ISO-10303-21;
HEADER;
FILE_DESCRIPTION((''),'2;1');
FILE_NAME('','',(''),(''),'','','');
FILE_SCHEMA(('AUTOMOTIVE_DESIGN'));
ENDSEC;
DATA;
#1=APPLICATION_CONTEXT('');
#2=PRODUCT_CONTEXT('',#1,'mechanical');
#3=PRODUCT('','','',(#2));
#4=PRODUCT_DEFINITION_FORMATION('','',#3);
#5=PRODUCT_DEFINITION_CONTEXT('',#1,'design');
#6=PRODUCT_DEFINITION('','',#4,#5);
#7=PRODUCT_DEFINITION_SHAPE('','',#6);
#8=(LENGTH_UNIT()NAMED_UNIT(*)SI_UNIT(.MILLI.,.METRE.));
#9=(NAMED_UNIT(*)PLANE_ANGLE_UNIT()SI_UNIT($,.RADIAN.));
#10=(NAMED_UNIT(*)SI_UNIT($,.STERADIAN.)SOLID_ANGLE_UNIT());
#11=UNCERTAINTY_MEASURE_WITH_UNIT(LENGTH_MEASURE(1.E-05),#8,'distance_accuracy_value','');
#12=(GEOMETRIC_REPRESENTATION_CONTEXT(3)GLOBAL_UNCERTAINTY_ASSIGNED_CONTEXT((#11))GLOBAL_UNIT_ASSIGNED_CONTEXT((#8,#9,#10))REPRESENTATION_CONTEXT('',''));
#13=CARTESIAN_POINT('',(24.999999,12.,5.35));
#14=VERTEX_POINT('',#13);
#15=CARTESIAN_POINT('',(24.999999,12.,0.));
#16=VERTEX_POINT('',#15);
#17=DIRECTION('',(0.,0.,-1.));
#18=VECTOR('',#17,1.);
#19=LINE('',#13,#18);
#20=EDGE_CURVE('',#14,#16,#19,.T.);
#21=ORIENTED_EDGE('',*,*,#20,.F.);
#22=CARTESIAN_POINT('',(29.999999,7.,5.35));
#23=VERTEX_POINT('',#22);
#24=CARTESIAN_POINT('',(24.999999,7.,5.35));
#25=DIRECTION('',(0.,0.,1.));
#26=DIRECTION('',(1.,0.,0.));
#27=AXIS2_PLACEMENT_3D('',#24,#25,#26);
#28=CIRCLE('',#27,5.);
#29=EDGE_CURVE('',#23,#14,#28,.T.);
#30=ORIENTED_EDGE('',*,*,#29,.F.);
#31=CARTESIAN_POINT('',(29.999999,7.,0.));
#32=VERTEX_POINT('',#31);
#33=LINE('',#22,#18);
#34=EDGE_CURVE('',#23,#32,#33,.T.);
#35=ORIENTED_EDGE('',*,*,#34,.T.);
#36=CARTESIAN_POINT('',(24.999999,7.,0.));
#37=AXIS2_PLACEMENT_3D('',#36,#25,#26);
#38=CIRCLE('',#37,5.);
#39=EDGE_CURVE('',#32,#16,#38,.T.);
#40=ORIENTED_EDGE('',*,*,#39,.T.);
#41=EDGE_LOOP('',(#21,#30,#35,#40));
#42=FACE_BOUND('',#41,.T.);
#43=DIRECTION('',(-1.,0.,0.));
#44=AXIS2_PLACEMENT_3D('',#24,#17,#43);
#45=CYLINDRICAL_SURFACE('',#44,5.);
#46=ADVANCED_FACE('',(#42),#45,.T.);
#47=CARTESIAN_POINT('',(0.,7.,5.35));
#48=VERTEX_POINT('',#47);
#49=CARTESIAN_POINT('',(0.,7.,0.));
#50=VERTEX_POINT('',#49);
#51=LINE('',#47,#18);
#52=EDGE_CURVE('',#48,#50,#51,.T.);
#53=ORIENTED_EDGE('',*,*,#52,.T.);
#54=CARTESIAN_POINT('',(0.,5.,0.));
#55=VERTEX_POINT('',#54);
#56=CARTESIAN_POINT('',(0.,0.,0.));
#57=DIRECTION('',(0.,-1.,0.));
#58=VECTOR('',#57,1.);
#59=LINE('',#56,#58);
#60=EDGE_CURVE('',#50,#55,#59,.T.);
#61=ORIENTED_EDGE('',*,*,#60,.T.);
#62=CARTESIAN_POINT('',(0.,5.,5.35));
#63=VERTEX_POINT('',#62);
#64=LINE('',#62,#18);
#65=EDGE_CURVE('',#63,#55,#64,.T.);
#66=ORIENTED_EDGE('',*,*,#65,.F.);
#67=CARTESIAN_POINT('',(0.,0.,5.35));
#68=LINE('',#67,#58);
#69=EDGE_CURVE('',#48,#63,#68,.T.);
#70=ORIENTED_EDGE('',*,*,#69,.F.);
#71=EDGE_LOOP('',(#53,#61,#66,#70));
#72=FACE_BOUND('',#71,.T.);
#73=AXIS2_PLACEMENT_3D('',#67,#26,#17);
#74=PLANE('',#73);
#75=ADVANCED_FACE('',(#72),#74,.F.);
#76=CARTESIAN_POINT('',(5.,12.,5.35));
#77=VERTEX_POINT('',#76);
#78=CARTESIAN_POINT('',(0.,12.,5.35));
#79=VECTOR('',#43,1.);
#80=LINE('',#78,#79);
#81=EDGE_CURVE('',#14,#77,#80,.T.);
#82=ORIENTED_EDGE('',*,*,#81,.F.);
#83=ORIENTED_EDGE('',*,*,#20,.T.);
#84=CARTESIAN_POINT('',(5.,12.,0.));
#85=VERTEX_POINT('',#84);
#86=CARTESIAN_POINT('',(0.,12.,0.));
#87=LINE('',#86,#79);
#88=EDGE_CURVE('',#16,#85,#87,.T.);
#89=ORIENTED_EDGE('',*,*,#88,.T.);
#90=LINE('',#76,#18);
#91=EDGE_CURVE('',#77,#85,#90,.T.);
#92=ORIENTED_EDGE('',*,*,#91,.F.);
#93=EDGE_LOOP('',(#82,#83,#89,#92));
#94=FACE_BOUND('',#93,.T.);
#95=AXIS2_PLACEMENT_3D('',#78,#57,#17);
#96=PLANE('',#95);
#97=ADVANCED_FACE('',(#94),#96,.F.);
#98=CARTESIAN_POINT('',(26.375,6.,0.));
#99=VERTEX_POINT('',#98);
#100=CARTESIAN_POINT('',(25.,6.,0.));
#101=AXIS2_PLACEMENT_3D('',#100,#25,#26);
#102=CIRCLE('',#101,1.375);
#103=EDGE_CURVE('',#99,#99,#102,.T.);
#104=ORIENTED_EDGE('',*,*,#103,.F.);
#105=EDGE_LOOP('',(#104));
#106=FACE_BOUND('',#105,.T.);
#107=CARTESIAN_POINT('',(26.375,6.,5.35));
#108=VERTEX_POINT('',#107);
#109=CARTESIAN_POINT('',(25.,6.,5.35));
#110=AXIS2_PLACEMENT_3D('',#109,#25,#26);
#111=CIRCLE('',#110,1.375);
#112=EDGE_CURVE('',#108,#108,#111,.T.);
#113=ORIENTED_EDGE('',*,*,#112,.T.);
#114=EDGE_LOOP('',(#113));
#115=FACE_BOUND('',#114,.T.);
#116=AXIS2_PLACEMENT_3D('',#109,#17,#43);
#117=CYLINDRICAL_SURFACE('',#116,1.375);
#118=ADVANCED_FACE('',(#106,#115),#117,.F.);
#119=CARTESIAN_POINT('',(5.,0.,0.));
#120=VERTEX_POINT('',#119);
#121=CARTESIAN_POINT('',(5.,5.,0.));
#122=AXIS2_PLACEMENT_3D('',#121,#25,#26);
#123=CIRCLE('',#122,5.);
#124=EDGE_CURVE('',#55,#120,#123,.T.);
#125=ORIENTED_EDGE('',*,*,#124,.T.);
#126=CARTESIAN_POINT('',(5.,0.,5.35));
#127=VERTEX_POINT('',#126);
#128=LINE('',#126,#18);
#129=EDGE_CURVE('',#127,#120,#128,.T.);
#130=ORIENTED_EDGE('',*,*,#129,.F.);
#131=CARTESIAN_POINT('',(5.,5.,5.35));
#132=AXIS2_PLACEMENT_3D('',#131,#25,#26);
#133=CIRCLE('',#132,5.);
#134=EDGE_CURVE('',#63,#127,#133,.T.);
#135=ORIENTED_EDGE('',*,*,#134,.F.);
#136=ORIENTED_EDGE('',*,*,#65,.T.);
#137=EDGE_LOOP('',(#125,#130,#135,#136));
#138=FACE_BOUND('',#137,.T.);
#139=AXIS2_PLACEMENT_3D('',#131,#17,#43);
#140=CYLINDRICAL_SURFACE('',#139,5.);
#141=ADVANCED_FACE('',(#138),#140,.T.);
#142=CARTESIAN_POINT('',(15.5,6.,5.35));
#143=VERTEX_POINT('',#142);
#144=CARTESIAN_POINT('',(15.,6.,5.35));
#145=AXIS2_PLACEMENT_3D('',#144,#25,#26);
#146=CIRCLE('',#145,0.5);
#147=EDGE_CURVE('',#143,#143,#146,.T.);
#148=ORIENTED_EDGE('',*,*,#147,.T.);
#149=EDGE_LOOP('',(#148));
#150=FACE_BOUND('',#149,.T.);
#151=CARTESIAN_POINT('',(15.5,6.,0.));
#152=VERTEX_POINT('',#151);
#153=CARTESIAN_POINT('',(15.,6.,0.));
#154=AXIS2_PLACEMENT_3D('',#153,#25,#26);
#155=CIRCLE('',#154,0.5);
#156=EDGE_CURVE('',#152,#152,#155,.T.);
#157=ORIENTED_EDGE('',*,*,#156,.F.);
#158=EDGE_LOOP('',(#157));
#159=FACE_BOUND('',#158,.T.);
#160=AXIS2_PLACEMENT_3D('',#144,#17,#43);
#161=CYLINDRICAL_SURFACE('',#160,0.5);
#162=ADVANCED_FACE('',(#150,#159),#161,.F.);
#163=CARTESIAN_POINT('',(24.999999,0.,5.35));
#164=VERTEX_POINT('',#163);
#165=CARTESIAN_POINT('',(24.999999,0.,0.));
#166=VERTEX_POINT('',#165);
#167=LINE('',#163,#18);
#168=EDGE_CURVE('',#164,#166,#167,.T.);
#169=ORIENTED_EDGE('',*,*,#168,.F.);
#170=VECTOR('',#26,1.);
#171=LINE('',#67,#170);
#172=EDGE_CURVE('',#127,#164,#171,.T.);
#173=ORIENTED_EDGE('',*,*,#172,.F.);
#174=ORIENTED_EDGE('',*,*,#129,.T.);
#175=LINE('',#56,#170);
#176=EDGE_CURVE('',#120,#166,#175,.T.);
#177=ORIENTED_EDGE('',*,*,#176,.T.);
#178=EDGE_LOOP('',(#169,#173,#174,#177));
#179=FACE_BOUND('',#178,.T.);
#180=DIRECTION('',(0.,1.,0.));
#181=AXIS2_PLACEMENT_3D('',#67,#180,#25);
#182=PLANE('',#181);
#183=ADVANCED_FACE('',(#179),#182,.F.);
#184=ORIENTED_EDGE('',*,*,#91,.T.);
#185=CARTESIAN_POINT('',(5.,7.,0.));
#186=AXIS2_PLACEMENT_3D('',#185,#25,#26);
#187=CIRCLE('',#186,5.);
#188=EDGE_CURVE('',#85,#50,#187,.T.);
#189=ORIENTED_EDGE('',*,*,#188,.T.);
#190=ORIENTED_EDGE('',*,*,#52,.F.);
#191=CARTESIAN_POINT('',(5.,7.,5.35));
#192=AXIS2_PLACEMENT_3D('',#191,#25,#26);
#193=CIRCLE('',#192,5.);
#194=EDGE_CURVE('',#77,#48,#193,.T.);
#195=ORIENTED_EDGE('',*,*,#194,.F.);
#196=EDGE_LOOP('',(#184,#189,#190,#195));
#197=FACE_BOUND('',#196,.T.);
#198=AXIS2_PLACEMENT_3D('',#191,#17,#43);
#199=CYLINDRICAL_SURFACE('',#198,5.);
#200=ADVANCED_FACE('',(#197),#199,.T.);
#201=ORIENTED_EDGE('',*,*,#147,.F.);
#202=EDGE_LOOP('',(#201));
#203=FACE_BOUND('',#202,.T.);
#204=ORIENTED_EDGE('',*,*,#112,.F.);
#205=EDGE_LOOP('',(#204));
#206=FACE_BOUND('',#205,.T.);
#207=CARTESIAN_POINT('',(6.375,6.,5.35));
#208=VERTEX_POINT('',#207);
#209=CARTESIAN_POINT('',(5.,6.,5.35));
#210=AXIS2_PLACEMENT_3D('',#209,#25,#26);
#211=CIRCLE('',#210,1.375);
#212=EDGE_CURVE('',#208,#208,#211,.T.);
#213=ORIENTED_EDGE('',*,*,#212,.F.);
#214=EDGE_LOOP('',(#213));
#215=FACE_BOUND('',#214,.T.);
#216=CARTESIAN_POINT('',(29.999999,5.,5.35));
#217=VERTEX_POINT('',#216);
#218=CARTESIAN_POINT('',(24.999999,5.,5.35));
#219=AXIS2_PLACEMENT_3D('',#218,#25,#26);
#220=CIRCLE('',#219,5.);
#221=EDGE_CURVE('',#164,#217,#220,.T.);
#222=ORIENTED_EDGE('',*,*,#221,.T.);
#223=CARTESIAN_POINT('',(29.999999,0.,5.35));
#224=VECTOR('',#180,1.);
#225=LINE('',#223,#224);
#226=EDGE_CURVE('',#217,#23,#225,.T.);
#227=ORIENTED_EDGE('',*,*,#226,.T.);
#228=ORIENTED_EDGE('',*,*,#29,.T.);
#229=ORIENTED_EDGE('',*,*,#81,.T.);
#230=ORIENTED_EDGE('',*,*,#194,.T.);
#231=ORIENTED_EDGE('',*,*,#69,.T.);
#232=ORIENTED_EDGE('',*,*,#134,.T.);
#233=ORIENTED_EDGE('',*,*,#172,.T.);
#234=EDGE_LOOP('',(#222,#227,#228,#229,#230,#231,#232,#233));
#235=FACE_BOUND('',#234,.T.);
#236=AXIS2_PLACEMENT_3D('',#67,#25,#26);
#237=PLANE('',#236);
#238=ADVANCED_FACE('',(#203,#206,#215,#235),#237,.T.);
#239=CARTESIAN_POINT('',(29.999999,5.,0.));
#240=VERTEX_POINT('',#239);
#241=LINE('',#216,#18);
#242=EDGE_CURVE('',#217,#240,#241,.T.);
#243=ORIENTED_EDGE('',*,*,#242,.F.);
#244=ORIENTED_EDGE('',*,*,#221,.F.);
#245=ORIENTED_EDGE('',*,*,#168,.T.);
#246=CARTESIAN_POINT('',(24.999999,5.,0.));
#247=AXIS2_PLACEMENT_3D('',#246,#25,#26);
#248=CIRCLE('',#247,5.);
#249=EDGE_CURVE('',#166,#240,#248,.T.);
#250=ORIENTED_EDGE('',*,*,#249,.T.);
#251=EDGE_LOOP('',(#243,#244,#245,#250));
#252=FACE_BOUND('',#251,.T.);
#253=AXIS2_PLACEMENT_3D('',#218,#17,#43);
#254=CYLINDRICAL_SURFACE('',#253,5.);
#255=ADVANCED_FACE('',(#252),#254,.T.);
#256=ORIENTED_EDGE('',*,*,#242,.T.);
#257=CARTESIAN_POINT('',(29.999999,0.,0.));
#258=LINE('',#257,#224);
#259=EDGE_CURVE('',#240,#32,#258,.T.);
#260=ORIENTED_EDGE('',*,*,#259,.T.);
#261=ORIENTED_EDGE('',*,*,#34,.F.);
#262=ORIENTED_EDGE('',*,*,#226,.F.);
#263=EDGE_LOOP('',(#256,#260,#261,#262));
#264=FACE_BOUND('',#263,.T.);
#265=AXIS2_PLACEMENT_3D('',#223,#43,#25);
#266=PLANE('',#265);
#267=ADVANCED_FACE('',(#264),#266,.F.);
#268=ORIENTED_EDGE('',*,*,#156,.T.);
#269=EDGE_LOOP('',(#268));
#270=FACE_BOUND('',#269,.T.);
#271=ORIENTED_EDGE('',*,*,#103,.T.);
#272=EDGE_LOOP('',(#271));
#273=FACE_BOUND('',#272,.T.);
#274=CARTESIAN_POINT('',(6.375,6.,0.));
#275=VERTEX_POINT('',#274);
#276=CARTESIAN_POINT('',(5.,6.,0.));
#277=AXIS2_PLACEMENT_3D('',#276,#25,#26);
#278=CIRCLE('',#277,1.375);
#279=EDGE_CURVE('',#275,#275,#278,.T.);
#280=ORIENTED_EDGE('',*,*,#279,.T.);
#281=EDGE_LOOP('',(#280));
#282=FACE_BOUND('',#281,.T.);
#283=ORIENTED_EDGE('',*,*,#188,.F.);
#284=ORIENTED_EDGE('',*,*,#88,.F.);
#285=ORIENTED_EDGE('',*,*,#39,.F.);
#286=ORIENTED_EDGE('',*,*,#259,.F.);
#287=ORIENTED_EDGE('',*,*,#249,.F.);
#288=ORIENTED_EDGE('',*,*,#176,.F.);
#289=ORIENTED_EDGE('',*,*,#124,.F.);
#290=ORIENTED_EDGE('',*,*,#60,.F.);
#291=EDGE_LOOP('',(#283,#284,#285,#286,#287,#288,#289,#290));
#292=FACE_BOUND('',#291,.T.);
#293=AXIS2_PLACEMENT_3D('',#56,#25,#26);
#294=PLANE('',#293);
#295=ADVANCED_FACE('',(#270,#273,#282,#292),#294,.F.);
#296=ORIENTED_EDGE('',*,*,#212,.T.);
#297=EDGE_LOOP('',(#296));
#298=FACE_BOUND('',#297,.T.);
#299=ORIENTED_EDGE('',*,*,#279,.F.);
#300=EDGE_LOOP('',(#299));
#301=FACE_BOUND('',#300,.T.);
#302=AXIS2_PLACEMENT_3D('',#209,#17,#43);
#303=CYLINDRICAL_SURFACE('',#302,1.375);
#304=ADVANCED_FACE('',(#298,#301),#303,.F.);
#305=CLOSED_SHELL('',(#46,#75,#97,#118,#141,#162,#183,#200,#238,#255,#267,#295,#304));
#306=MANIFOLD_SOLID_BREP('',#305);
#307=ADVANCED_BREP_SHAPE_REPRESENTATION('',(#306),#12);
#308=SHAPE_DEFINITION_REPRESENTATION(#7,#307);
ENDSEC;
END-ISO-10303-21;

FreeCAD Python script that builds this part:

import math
import FreeCAD as App
import Part
import Sketcher

V = App.Vector
Q = App.Units.Quantity

doc = App.newDocument("Part")
params = doc.addObject("Spreadsheet::Sheet", "Params")
for row, (alias, value) in enumerate([
    ("sketch1_diameter", "1 mm"),
    ("sketch1_radius", "5 mm"),
    ("sketch1_diameter2", "2.75 mm"),
    ("sketch1_width", "19.999999 mm"),
    ("sketch1_height", "2 mm"),
    ("pad1_length", "5.35 mm"),
], start=1):
    params.set(f"A{row}", alias)
    params.set(f"B{row}", "=" + value)
    params.setAlias(f"B{row}", alias)

body = doc.addObject("PartDesign::Body", "Body")

sketch1 = body.newObject("Sketcher::SketchObject", "Sketch")
sketch1.AttachmentSupport = (doc.getObject("XY_Plane"), [""])
sketch1.MapMode = "FlatFace"
sketch1.addGeometry(Part.LineSegment(V(5, 0, 0), V(24.999999, 0, 0)), False)
sketch1.addGeometry(Part.ArcOfCircle(Part.Circle(V(24.999999, 5, 0), V(0, 0, 1), 5), math.radians(-89.999999), math.radians(0)), False)
sketch1.addGeometry(Part.LineSegment(V(29.999999, 5, 0), V(29.999999, 7, 0)), False)
sketch1.addGeometry(Part.ArcOfCircle(Part.Circle(V(24.999999, 7, 0), V(0, 0, 1), 5), math.radians(0), math.radians(90)), False)
sketch1.addGeometry(Part.LineSegment(V(24.999999, 12, 0), V(5, 12, 0)), False)
sketch1.addGeometry(Part.ArcOfCircle(Part.Circle(V(5, 7, 0), V(0, 0, 1), 5), math.radians(90.000001), math.radians(180)), False)
sketch1.addGeometry(Part.LineSegment(V(0, 7, 0), V(0, 5, 0)), False)
sketch1.addGeometry(Part.ArcOfCircle(Part.Circle(V(5, 5, 0), V(0, 0, 1), 5), math.radians(180), math.radians(270)), False)
sketch1.addGeometry(Part.Circle(V(5, 6, 0), V(0, 0, 1), 1.375), False)
sketch1.addGeometry(Part.Circle(V(15, 6, 0), V(0, 0, 1), 0.5), False)
sketch1.addGeometry(Part.Circle(V(25, 6, 0), V(0, 0, 1), 1.375), False)
sketch1.addConstraint(Sketcher.Constraint("Tangent", 0, 2, 1, 1))
sketch1.addConstraint(Sketcher.Constraint("Tangent", 1, 2, 2, 1))
sketch1.addConstraint(Sketcher.Constraint("Tangent", 2, 2, 3, 1))
sketch1.addConstraint(Sketcher.Constraint("Tangent", 3, 2, 4, 1))
sketch1.addConstraint(Sketcher.Constraint("Tangent", 4, 2, 5, 1))
sketch1.addConstraint(Sketcher.Constraint("Tangent", 5, 2, 6, 1))
sketch1.addConstraint(Sketcher.Constraint("Tangent", 6, 2, 7, 1))
sketch1.addConstraint(Sketcher.Constraint("Tangent", 7, 2, 0, 1))
sketch1.addConstraint(Sketcher.Constraint("Horizontal", 0))
sketch1.addConstraint(Sketcher.Constraint("Vertical", 2))
sketch1.addConstraint(Sketcher.Constraint("Horizontal", 4))
sketch1.addConstraint(Sketcher.Constraint("Vertical", 6))
sketch1.addConstraint(Sketcher.Constraint("Equal", 1, 3))
sketch1.addConstraint(Sketcher.Constraint("Equal", 3, 5))
sketch1.addConstraint(Sketcher.Constraint("Equal", 5, 7))
sketch1.addConstraint(Sketcher.Constraint("Equal", 8, 10))
sketch1.addConstraint(Sketcher.Constraint("PointOnObject", 0, 2, -1))
sketch1.addConstraint(Sketcher.Constraint("PointOnObject", 5, 2, -2))
sketch1.addConstraint(Sketcher.Constraint("Horizontal", 8, 3, 9, 3))
sketch1.addConstraint(Sketcher.Constraint("Horizontal", 9, 3, 10, 3))
sketch1.addConstraint(Sketcher.Constraint("Vertical", 7, 3, 8, 3))
sketch1.addConstraint(Sketcher.Constraint("Vertical", 3, 3, 10, 3))
sketch1.addConstraint(Sketcher.Constraint("Diameter", 9, Q("1 mm")))
sketch1.addConstraint(Sketcher.Constraint("Radius", 1, Q("5 mm")))
sketch1.addConstraint(Sketcher.Constraint("Diameter", 8, Q("2.75 mm")))
sketch1.addConstraint(Sketcher.Constraint("DistanceX", 0, 1, 0, 2, Q("19.999999 mm")))
sketch1.addConstraint(Sketcher.Constraint("DistanceY", 2, 1, 2, 2, Q("2 mm")))
sketch1.addConstraint(Sketcher.Constraint("DistanceY", -1, 1, 8, 3, Q("6 mm")))
sketch1.addConstraint(Sketcher.Constraint("DistanceX", -1, 1, 9, 3, Q("15 mm")))
sketch1.setExpression("Constraints[22]", "Params.sketch1_diameter")
sketch1.setExpression("Constraints[23]", "Params.sketch1_radius")
sketch1.setExpression("Constraints[24]", "Params.sketch1_diameter2")
sketch1.setExpression("Constraints[25]", "Params.sketch1_width")
sketch1.setExpression("Constraints[26]", "Params.sketch1_height")
pad1 = body.newObject("PartDesign::Pad", "Pad")
pad1.Profile = sketch1
pad1.setExpression("Length", "Params.pad1_length")

doc.recompute()
